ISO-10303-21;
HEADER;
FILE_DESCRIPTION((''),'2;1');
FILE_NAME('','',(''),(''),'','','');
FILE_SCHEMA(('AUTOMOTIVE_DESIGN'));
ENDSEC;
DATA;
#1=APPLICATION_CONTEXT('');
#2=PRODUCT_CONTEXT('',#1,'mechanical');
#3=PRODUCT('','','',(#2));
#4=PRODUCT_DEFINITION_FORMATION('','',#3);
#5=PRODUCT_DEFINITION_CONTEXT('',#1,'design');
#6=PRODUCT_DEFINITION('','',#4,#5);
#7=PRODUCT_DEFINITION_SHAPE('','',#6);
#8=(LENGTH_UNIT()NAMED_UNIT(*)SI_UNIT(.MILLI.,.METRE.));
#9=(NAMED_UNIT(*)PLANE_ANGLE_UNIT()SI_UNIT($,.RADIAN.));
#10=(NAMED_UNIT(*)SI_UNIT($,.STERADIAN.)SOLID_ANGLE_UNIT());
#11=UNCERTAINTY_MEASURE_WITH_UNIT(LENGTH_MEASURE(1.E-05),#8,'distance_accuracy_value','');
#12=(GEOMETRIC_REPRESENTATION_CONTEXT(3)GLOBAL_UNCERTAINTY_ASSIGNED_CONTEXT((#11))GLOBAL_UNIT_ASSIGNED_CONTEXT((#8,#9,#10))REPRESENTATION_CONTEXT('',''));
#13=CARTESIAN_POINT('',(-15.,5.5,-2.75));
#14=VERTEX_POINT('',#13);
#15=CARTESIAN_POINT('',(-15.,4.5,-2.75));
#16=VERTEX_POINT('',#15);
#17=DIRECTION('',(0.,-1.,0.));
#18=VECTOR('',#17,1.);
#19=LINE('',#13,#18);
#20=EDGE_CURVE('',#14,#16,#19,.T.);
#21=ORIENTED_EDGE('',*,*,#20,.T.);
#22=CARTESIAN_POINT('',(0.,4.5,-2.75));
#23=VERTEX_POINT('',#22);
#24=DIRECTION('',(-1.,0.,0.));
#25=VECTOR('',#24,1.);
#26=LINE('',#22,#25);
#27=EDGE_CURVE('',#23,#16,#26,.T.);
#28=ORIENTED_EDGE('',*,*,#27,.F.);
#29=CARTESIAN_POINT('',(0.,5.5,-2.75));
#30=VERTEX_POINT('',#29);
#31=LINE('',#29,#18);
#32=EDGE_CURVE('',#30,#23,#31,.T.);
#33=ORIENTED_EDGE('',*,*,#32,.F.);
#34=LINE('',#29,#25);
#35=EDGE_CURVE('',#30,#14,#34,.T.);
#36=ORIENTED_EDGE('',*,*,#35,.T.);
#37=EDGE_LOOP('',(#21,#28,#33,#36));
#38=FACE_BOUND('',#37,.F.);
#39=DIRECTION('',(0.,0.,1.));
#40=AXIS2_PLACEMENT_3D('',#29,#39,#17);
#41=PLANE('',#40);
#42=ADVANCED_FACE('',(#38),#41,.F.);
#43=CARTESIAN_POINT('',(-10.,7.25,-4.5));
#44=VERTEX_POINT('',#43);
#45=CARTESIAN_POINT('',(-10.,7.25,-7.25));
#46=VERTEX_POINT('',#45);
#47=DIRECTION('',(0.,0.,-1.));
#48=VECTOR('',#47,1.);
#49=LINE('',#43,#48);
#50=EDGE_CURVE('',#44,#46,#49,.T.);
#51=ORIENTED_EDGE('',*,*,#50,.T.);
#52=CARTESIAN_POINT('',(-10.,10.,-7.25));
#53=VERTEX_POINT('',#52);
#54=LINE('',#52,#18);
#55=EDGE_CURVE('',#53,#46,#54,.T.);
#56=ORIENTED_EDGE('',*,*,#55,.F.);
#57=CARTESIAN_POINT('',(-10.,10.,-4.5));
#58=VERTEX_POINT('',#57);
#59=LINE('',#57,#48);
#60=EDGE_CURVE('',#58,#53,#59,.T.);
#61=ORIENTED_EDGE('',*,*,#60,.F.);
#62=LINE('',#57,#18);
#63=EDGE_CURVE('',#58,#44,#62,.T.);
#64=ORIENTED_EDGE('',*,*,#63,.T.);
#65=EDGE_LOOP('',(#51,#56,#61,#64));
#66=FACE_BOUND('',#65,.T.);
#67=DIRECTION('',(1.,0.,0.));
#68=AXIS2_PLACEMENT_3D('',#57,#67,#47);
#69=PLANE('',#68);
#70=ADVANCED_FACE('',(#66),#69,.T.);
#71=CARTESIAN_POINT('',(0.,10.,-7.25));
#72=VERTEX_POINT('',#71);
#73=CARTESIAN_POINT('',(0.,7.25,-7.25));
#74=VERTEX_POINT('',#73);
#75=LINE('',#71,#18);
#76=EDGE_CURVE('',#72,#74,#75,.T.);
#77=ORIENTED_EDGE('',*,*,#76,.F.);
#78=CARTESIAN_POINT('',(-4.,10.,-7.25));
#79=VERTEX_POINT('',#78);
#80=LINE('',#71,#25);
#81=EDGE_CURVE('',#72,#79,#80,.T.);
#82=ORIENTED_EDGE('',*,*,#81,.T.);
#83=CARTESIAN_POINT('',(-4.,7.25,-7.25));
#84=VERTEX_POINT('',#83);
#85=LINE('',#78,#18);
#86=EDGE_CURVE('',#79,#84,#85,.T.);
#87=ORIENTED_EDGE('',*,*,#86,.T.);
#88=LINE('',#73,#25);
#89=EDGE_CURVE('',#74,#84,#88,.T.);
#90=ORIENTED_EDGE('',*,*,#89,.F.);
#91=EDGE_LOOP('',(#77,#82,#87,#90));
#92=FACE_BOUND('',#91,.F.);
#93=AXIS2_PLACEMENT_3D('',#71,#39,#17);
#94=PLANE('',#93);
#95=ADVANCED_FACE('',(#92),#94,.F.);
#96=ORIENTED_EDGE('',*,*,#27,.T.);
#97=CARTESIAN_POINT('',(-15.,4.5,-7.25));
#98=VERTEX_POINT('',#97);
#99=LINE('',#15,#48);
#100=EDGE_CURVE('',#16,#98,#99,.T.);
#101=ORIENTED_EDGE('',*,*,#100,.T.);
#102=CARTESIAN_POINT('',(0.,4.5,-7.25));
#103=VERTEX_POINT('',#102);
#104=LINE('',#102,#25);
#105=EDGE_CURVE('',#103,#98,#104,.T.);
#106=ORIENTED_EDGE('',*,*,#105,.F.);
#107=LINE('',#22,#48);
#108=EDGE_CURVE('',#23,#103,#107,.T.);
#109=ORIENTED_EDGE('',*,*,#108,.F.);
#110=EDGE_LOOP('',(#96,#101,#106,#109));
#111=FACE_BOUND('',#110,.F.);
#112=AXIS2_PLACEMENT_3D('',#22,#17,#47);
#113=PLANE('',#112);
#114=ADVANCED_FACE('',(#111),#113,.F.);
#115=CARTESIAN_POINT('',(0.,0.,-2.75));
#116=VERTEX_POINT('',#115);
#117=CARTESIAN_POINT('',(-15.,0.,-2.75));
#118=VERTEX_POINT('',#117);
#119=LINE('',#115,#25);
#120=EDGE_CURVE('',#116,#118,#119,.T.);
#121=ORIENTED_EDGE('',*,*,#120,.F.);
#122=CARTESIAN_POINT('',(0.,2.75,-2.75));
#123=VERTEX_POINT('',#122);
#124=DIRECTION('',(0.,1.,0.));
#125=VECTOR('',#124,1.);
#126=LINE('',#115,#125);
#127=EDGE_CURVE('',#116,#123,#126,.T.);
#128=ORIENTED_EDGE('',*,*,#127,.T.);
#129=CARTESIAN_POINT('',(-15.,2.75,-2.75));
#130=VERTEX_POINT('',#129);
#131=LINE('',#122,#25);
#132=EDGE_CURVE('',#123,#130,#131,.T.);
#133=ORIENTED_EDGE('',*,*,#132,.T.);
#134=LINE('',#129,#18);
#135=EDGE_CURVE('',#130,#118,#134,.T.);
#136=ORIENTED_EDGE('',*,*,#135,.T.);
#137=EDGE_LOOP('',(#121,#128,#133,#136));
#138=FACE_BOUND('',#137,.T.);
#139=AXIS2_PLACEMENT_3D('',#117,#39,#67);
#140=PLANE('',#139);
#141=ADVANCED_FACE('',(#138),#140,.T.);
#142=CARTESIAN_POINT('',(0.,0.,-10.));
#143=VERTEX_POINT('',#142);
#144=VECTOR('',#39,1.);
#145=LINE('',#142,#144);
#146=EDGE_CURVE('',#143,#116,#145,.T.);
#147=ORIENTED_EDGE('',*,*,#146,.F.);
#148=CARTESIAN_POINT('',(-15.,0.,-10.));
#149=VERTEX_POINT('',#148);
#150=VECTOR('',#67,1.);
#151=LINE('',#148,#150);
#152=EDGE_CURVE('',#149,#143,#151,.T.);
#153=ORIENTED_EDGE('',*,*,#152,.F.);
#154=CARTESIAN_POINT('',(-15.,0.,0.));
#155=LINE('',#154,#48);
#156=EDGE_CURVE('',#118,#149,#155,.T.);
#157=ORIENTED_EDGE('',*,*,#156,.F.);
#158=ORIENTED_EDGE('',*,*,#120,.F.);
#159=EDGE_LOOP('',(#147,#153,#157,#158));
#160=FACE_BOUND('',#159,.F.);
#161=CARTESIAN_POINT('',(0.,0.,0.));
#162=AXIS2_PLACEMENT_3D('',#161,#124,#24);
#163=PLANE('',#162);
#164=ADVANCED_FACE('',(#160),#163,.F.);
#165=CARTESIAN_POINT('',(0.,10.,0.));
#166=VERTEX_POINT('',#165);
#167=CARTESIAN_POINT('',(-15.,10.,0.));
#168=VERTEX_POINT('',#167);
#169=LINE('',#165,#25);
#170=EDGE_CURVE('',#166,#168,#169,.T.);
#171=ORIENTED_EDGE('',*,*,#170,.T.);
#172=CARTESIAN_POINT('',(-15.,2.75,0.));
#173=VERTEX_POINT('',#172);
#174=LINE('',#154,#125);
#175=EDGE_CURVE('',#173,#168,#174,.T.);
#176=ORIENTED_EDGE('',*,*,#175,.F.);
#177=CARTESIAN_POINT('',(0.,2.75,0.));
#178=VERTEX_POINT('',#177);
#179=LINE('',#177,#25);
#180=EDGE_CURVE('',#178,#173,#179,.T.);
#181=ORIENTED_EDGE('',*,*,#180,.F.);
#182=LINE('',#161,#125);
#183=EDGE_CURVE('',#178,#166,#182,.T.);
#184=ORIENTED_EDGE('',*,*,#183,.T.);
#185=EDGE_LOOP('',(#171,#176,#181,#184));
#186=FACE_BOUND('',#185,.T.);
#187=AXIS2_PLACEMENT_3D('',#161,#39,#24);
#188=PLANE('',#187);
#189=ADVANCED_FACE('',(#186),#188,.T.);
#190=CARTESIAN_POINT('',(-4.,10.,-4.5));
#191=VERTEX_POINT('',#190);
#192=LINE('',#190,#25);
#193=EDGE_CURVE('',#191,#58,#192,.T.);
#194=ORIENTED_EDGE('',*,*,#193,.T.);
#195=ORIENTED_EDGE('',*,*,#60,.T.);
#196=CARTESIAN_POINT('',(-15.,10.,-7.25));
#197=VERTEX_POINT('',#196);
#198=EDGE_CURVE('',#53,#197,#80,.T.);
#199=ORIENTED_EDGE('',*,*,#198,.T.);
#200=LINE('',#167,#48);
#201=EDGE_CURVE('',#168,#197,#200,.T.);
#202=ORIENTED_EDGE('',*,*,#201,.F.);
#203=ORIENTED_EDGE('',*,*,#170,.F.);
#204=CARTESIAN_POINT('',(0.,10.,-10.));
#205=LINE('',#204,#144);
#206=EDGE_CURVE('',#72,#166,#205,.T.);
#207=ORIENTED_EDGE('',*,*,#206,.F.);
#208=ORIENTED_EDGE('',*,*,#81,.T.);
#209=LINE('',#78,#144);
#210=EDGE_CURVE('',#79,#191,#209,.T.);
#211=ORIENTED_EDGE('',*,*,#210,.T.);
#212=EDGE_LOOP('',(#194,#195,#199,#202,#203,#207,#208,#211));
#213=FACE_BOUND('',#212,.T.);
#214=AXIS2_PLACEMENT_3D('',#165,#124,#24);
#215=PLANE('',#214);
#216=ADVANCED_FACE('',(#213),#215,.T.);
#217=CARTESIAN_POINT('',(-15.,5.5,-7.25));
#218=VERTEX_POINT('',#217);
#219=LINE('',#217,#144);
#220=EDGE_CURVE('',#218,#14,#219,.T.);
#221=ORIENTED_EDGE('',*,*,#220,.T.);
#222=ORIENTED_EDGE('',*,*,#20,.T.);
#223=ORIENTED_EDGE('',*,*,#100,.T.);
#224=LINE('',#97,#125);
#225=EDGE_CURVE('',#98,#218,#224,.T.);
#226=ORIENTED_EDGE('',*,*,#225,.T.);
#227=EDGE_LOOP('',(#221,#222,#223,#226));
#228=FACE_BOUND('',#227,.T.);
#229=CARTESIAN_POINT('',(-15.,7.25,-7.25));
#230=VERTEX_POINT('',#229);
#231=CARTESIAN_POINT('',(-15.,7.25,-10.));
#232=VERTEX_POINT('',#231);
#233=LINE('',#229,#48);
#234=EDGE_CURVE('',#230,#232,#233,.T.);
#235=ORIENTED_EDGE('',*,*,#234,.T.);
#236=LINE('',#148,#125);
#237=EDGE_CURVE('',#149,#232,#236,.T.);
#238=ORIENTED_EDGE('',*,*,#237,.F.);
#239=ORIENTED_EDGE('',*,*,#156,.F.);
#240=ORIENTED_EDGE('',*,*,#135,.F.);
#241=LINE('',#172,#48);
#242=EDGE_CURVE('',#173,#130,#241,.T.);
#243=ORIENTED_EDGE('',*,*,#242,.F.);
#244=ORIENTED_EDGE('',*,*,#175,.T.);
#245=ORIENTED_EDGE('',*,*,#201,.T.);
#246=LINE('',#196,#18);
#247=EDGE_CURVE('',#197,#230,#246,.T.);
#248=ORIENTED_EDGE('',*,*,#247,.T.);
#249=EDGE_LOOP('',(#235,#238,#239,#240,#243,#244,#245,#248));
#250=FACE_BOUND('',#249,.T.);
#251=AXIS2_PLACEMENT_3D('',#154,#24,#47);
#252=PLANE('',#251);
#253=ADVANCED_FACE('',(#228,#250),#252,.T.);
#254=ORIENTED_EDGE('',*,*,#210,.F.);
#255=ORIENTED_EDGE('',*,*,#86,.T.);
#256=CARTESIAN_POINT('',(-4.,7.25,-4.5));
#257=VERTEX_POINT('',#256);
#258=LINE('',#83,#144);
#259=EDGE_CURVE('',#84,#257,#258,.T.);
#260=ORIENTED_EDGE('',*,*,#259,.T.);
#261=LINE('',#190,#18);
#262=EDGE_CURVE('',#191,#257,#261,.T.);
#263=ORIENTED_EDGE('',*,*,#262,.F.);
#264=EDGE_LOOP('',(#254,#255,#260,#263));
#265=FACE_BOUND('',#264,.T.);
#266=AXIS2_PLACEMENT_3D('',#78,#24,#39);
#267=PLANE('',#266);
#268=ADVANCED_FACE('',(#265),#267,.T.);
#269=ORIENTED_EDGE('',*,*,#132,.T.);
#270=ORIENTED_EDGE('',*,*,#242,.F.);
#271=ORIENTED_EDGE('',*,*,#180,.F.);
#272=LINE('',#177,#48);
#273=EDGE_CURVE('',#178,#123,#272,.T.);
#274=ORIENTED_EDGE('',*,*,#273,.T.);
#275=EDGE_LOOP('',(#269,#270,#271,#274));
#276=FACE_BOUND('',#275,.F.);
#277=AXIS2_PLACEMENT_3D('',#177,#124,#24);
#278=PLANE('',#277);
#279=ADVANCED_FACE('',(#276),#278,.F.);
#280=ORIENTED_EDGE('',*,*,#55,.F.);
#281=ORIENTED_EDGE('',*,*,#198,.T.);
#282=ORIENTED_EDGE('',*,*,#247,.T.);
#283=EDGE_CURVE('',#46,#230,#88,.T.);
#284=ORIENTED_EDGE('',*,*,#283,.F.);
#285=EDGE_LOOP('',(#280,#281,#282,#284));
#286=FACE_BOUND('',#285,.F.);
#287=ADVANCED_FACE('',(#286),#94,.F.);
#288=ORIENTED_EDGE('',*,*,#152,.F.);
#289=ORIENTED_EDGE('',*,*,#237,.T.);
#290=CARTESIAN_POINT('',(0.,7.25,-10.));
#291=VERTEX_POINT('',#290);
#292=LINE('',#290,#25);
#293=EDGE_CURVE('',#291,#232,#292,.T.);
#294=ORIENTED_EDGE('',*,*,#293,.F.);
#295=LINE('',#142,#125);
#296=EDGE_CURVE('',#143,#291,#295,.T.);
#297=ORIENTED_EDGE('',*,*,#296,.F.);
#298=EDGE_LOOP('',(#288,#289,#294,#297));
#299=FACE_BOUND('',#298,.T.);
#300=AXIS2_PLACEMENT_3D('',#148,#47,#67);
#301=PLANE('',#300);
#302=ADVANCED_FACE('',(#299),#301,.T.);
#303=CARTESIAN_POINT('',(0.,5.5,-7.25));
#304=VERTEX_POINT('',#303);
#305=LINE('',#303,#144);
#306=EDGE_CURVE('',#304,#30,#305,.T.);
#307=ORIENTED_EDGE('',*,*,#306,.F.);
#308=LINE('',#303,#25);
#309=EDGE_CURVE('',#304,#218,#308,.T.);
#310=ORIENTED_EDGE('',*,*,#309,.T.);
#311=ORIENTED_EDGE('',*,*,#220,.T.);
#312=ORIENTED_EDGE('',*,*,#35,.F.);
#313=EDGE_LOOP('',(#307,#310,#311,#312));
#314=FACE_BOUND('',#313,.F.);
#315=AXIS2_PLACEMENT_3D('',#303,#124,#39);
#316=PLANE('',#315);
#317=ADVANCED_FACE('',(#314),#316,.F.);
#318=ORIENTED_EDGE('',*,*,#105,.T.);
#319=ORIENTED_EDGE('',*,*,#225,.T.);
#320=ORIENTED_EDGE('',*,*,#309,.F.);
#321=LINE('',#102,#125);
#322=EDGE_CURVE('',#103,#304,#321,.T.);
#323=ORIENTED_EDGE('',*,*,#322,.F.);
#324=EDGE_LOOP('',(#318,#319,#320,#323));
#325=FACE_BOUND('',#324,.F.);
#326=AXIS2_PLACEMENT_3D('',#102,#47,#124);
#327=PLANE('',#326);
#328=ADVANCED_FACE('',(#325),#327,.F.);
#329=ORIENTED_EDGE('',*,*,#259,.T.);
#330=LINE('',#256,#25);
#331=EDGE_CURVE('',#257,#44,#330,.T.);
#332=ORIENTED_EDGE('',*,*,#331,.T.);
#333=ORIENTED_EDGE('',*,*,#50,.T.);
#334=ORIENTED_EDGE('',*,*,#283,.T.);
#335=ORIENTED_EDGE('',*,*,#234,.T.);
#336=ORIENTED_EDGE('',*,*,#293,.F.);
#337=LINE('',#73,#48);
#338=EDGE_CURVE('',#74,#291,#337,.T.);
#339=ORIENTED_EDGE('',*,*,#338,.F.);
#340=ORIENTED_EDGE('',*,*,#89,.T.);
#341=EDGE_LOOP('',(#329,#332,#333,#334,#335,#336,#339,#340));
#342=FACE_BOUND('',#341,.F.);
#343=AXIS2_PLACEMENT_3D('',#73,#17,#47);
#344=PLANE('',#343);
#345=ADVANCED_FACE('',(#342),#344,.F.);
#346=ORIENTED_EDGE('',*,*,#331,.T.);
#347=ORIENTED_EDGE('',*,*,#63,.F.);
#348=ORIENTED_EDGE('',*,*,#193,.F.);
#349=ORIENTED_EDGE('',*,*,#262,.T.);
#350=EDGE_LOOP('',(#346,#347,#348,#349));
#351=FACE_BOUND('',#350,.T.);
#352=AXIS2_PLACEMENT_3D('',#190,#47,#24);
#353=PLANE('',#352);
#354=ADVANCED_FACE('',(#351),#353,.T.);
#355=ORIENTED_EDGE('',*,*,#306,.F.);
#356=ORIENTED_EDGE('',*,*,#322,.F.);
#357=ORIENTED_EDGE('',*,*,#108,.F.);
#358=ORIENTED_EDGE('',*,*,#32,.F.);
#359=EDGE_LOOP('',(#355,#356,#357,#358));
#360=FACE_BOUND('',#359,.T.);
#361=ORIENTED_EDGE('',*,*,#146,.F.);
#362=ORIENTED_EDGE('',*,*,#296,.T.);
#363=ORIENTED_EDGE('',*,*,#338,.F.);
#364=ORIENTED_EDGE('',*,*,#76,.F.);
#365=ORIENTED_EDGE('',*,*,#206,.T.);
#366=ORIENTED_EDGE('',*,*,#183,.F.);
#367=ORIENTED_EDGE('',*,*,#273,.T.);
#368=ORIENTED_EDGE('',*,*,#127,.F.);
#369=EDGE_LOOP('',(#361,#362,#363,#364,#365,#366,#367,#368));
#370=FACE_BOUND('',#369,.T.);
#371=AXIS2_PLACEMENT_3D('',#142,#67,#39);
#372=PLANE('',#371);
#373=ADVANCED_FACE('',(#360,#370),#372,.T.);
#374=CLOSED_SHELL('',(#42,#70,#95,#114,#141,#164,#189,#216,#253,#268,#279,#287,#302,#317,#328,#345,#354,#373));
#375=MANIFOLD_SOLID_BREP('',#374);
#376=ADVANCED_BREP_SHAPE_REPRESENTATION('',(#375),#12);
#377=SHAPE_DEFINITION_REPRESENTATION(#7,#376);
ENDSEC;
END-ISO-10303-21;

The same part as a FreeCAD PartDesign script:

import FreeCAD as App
import Part
import Sketcher


def add_polygon(sketch, points):
    """Adds a closed chain of lines whose ends are joined by coincident constraints."""
    first, n = sketch.GeometryCount, len(points)
    for a, b in zip(points, points[1:] + points[:1]):
        sketch.addGeometry(Part.LineSegment(App.Vector(*a, 0), App.Vector(*b, 0)), False)
    for i in range(n):
        sketch.addConstraint(Sketcher.Constraint("Coincident", first + i, 2, first + (i + 1) % n, 1))

doc = App.newDocument("Part")
params = doc.addObject("Spreadsheet::Sheet", "Params")
for row, (alias, value) in enumerate([
    ("sketch1_width", "15 mm"),
    ("sketch1_height", "10 mm"),
    ("pad1_length", "10 mm"),
    ("sketch2_height", "2.75 mm"),
    ("sketch2_width", "15 mm"),
    ("pocket1_length", "2.75 mm"),
    ("sketch3_width", "2.75 mm"),
    ("pocket2_length", "15 mm"),
    ("sketch4_width", "6 mm"),
    ("sketch4_height", "2.75 mm"),
    ("pocket3_length", "2.75 mm"),
    ("sketch5_width", "1 mm"),
    ("sketch5_height", "4.5 mm"),
    ("pocket4_length", "15 mm"),
], start=1):
    params.set(f"A{row}", alias)
    params.set(f"B{row}", "=" + value)
    params.setAlias(f"B{row}", alias)

body = doc.addObject("PartDesign::Body", "Body")

sketch1 = body.newObject("Sketcher::SketchObject", "Sketch")
sketch1.AttachmentSupport = (doc.getObject("XZ_Plane"), [""])
sketch1.MapMode = "FlatFace"
add_polygon(sketch1, [(-15, 0), (0, 0), (0, -10), (-15, -10)])
sketch1.addConstraint([
    Sketcher.Constraint("Horizontal", 0),
    Sketcher.Constraint("Vertical", 1),
    Sketcher.Constraint("Horizontal", 2),
    Sketcher.Constraint("Vertical", 3),
    Sketcher.Constraint("Coincident", 0, 2, -1, 1),
    Sketcher.Constraint("DistanceX", 0, 1, 0, 2, 15.0),
    Sketcher.Constraint("DistanceY", 1, 2, 1, 1, 10.0),
])
sketch1.setExpression("Constraints[9]", "Params.sketch1_width")
sketch1.setExpression("Constraints[10]", "Params.sketch1_height")
pad1 = body.newObject("PartDesign::Pad", "Pad")
pad1.Profile = sketch1
pad1.setExpression("Length", "Params.pad1_length")
pad1.Reversed = True

sketch2 = body.newObject("Sketcher::SketchObject", "Sketch001")
sketch2.AttachmentSupport = (doc.getObject("XY_Plane"), [""])
sketch2.MapMode = "FlatFace"
add_polygon(sketch2, [(-15, 0), (0, 0), (0, 2.75), (-15, 2.75)])
sketch2.addConstraint([
    Sketcher.Constraint("Horizontal", 0),
    Sketcher.Constraint("Vertical", 1),
    Sketcher.Constraint("Horizontal", 2),
    Sketcher.Constraint("Vertical", 3),
    Sketcher.Constraint("Coincident", 0, 2, -1, 1),
    Sketcher.Constraint("DistanceY", 1, 1, 1, 2, 2.75),
    Sketcher.Constraint("DistanceX", 0, 1, 0, 2, 15.0),
])
sketch2.setExpression("Constraints[9]", "Params.sketch2_height")
sketch2.setExpression("Constraints[10]", "Params.sketch2_width")
pocket1 = body.newObject("PartDesign::Pocket", "Pocket")
pocket1.Profile = sketch2
pocket1.setExpression("Length", "Params.pocket1_length")

sketch3 = body.newObject("Sketcher::SketchObject", "Sketch002")
sketch3.AttachmentSupport = (doc.getObject("YZ_Plane"), [""])
sketch3.MapMode = "FlatFace"
add_polygon(sketch3, [(7.25, -10), (10, -10), (10, -7.25), (7.25, -7.25)])
sketch3.addConstraint([
    Sketcher.Constraint("Horizontal", 0),
    Sketcher.Constraint("Vertical", 1),
    Sketcher.Constraint("Horizontal", 2),
    Sketcher.Constraint("Vertical", 3),
    Sketcher.Constraint("Equal", 2, 1),
    Sketcher.Constraint("DistanceX", 0, 1, 0, 2, 2.75),
    Sketcher.Constraint("DistanceX", -1, 1, 0, 2, 10.0),
    Sketcher.Constraint("DistanceY", 0, 2, -1, 1, 10.0),
])
sketch3.setExpression("Constraints[9]", "Params.sketch3_width")
pocket2 = body.newObject("PartDesign::Pocket", "Pocket001")
pocket2.Profile = sketch3
pocket2.setExpression("Length", "Params.pocket2_length")

sketch4 = body.newObject("Sketcher::SketchObject", "Sketch003")
sketch4.AttachmentSupport = (doc.getObject("XZ_Plane"), [""])
sketch4.MapMode = "FlatFace"
sketch4.AttachmentOffset = App.Placement(App.Vector(0, 0, -10), App.Rotation())
add_polygon(sketch4, [(-4, -4.5), (-4, -7.25), (-10, -7.25), (-10, -4.5)])
sketch4.addConstraint([
    Sketcher.Constraint("Vertical", 0),
    Sketcher.Constraint("Horizontal", 1),
    Sketcher.Constraint("Vertical", 2),
    Sketcher.Constraint("Horizontal", 3),
    Sketcher.Constraint("DistanceX", 1, 2, 1, 1, 6.0),
    Sketcher.Constraint("DistanceY", 0, 2, 0, 1, 2.75),
    Sketcher.Constraint("DistanceX", 0, 2, -1, 1, 4.0),
    Sketcher.Constraint("DistanceY", 2, 2, -1, 1, 4.5),
])
sketch4.setExpression("Constraints[8]", "Params.sketch4_width")
sketch4.setExpression("Constraints[9]", "Params.sketch4_height")
pocket3 = body.newObject("PartDesign::Pocket", "Pocket002")
pocket3.Profile = sketch4
pocket3.setExpression("Length", "Params.pocket3_length")
pocket3.Reversed = True

sketch5 = body.newObject("Sketcher::SketchObject", "Sketch004")
sketch5.AttachmentSupport = (doc.getObject("YZ_Plane"), [""])
sketch5.MapMode = "FlatFace"
add_polygon(sketch5, [(5.5, -2.75), (4.5, -2.75), (4.5, -7.25), (5.5, -7.25)])
sketch5.addConstraint([
    Sketcher.Constraint("Horizontal", 0),
    Sketcher.Constraint("Vertical", 1),
    Sketcher.Constraint("Horizontal", 2),
    Sketcher.Constraint("Vertical", 3),
    Sketcher.Constraint("DistanceX", 0, 2, 0, 1, 1.0),
    Sketcher.Constraint("DistanceY", 1, 2, 1, 1, 4.5),
    Sketcher.Constraint("DistanceX", -1, 1, 0, 2, 4.5),
    Sketcher.Constraint("DistanceY", 0, 2, -1, 1, 2.75),
])
sketch5.setExpression("Constraints[8]", "Params.sketch5_width")
sketch5.setExpression("Constraints[9]", "Params.sketch5_height")
pocket4 = body.newObject("PartDesign::Pocket", "Pocket003")
pocket4.Profile = sketch5
pocket4.setExpression("Length", "Params.pocket4_length")

doc.recompute()
